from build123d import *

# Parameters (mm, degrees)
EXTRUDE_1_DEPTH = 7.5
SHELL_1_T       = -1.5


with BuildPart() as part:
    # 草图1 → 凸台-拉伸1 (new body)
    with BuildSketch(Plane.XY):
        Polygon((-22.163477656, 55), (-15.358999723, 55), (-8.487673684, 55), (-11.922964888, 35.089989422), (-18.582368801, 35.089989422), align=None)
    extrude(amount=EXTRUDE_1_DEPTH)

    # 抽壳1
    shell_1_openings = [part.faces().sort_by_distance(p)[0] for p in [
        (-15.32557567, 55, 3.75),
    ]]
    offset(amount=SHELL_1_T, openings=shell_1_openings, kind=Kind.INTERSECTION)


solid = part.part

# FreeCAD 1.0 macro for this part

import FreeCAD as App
import Part
import Sketcher

V = App.Vector


def faces_at(feature, points):
    """Names of the faces that lie closest to the given points."""
    faces = feature.Shape.Faces
    near = lambda p: min(range(len(faces)), key=lambda i: faces[i].distToShape(Part.Vertex(*p))[0])
    return sorted({f"Face{near(p) + 1}" for p in points})

doc = App.newDocument("Part")
body = doc.addObject("PartDesign::Body", "Body")

sketch1 = doc.addObject("Sketcher::SketchObject", "Sketch")
body.addObject(sketch1)
sketch1.AttachmentSupport = (doc.XY_Plane, [""])
sketch1.MapMode = "FlatFace"
sketch1.addGeometry([
    Part.LineSegment(V(-8, 55, 0), V(-22, 55, 0)),
    Part.LineSegment(V(-22, 55, 0), V(-19, 35, 0)),
    Part.LineSegment(V(-19, 35, 0), V(-12, 35, 0)),
    Part.LineSegment(V(-12, 35, 0), V(-8, 55, 0)),
], False)
sketch1.addConstraint([
    Sketcher.Constraint("Coincident", 0, 2, 1, 1),
    Sketcher.Constraint("Coincident", 1, 2, 2, 1),
    Sketcher.Constraint("Coincident", 2, 2, 3, 1),
    Sketcher.Constraint("Coincident", 3, 2, 0, 1),
    Sketcher.Constraint("Horizontal", 0),
    Sketcher.Constraint("Horizontal", 2),
    Sketcher.Constraint("DistanceY", -1, 1, 0, 2, 55.0),
    Sketcher.Constraint("Distance", 3, 20.204201),
    Sketcher.Constraint("DistanceX", 0, 2, 0, 1, 13.675804),
    Sketcher.Constraint("DistanceX", 2, 1, 2, 2, 6.659404),
    Sketcher.Constraint("DistanceX", 1, 2, -1, 1, 18.582369),
    Sketcher.Constraint("DistanceY", -1, 1, 1, 2, 35.089989),
])
pad1 = doc.addObject("PartDesign::Pad", "Pad")
body.addObject(pad1)
pad1.Profile = sketch1
pad1.Length = 7.5
doc.recompute()

thickness = doc.addObject("PartDesign::Thickness", "Thickness")
body.addObject(thickness)
thickness.Base = (pad1, faces_at(pad1, [(-15.326, 55, 3.75)]))
thickness.Value = 1.5
thickness.Reversed = True
thickness.Join = "Intersection"

doc.recompute()
